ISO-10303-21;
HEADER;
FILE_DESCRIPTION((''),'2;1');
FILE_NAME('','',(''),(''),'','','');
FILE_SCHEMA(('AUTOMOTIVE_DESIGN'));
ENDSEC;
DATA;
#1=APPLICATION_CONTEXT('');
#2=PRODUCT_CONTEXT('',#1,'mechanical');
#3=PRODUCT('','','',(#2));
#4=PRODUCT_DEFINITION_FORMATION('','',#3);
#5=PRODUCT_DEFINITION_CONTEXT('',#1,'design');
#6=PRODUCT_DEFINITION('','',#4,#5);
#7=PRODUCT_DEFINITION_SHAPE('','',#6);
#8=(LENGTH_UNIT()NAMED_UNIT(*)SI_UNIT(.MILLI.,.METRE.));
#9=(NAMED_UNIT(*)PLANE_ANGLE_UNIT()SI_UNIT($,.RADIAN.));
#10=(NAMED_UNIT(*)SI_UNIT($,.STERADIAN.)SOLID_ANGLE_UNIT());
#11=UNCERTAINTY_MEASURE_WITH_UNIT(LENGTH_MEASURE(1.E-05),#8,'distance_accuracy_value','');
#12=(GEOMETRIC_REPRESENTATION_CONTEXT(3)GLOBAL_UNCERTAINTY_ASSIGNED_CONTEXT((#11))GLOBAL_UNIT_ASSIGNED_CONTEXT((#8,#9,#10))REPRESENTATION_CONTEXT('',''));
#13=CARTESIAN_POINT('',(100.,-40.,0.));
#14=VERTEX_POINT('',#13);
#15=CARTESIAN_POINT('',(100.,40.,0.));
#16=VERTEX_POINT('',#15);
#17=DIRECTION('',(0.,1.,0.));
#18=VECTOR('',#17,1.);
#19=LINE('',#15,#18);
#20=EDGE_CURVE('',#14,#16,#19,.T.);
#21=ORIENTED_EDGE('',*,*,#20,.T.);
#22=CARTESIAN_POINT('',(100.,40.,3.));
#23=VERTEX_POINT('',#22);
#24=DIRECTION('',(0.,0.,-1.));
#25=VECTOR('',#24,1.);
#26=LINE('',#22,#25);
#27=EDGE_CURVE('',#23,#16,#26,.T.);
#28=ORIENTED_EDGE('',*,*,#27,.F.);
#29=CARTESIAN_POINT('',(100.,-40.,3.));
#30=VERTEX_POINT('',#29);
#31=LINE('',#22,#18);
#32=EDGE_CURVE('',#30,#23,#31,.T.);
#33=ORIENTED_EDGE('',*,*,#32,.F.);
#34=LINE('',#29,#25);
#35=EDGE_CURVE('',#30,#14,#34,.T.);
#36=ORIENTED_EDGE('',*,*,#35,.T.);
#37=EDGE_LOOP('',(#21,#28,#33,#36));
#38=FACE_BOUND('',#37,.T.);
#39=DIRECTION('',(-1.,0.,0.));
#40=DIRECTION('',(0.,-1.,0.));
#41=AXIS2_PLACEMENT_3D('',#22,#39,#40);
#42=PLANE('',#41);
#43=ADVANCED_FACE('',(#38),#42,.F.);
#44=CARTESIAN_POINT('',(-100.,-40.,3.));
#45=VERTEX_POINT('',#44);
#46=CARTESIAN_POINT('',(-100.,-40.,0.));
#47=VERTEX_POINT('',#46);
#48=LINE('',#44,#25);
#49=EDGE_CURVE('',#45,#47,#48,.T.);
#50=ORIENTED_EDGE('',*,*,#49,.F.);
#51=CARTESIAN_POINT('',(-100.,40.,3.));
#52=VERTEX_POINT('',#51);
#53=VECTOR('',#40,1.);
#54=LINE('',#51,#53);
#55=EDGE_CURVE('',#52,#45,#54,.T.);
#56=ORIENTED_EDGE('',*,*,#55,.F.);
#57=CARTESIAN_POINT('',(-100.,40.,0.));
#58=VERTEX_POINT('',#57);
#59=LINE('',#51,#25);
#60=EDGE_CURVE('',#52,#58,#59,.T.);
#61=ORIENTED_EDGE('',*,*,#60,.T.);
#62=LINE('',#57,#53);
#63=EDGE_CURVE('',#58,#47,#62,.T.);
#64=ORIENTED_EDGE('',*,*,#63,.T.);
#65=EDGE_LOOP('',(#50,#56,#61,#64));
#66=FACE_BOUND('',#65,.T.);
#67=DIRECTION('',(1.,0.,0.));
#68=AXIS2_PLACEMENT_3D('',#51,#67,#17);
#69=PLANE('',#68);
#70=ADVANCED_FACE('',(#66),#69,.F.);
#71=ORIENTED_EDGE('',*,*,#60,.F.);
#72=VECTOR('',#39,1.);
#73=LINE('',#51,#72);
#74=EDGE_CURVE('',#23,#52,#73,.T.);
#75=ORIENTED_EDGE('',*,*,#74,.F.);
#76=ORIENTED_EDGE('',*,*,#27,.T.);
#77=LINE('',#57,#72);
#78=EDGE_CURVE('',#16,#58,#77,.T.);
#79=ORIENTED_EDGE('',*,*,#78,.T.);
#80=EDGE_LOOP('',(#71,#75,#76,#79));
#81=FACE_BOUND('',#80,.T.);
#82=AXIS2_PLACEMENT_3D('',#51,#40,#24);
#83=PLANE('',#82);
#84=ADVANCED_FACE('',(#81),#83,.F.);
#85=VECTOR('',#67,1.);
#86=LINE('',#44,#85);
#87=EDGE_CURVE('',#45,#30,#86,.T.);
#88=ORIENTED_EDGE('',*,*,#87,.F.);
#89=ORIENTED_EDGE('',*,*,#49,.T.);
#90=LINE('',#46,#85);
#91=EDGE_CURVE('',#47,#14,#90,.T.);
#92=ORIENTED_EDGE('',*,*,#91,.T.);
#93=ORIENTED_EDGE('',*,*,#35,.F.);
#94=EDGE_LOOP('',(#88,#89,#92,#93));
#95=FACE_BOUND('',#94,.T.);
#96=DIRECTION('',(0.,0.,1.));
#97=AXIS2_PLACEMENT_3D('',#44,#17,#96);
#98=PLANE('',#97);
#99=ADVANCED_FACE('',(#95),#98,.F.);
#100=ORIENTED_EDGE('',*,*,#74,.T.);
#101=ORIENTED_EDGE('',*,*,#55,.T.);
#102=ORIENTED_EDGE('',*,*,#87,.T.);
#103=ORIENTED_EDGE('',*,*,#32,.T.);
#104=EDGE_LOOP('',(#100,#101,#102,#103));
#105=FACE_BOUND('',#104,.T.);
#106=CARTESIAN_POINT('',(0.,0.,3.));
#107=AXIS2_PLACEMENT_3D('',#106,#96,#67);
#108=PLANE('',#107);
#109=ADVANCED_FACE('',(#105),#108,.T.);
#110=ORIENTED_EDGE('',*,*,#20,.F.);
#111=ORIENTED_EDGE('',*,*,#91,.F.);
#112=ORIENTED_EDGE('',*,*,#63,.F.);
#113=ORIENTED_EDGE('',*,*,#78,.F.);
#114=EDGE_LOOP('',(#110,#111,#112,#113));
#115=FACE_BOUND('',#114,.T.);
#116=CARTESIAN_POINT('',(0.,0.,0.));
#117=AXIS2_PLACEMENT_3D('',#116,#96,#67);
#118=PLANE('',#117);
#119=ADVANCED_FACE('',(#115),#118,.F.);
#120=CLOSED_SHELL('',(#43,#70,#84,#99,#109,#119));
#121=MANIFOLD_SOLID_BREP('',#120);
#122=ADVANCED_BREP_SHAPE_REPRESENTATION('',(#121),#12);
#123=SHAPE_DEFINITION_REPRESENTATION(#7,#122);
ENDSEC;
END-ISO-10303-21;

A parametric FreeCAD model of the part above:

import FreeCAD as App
import Part
import Sketcher
Q = App.Units.Quantity


def add_polygon(sketch, points):
    """Adds a closed chain of lines whose ends are joined by coincident constraints."""
    first, n = sketch.GeometryCount, len(points)
    for a, b in zip(points, points[1:] + points[:1]):
        sketch.addGeometry(Part.LineSegment(App.Vector(*a, 0), App.Vector(*b, 0)), False)
    for i in range(n):
        sketch.addConstraint(Sketcher.Constraint("Coincident", first + i, 2, first + (i + 1) % n, 1))

doc = App.newDocument("Part")
params = doc.addObject("Spreadsheet::Sheet", "Params")
for row, (alias, value) in enumerate([
    ("sketch1_width", "200 mm"),
    ("sketch1_height", "80 mm"),
    ("pad1_length", "3 mm"),
], start=1):
    params.set(f"A{row}", alias)
    params.set(f"B{row}", "=" + value)
    params.setAlias(f"B{row}", alias)

body = doc.addObject("PartDesign::Body", "Body")

sketch1 = body.newObject("Sketcher::SketchObject", "Sketch")
sketch1.AttachmentSupport = (doc.getObject("XY_Plane"), [""])
sketch1.MapMode = "FlatFace"
add_polygon(sketch1, [(-100, 40), (-100, -40), (100, -40), (100, 40)])
sketch1.addConstraint([
    Sketcher.Constraint("Vertical", 0),
    Sketcher.Constraint("Horizontal", 1),
    Sketcher.Constraint("Vertical", 2),
    Sketcher.Constraint("Horizontal", 3),
    Sketcher.Constraint("Symmetric", 0, 2, 2, 2, -1, 1),
    Sketcher.Constraint("DistanceX", 1, 1, 1, 2, Q("200 mm")),
    Sketcher.Constraint("DistanceY", 0, 2, 0, 1, Q("80 mm")),
])
sketch1.setExpression("Constraints[9]", "Params.sketch1_width")
sketch1.setExpression("Constraints[10]", "Params.sketch1_height")
pad1 = body.newObject("PartDesign::Pad", "Pad")
pad1.Profile = sketch1
pad1.setExpression("Length", "Params.pad1_length")

doc.recompute()
